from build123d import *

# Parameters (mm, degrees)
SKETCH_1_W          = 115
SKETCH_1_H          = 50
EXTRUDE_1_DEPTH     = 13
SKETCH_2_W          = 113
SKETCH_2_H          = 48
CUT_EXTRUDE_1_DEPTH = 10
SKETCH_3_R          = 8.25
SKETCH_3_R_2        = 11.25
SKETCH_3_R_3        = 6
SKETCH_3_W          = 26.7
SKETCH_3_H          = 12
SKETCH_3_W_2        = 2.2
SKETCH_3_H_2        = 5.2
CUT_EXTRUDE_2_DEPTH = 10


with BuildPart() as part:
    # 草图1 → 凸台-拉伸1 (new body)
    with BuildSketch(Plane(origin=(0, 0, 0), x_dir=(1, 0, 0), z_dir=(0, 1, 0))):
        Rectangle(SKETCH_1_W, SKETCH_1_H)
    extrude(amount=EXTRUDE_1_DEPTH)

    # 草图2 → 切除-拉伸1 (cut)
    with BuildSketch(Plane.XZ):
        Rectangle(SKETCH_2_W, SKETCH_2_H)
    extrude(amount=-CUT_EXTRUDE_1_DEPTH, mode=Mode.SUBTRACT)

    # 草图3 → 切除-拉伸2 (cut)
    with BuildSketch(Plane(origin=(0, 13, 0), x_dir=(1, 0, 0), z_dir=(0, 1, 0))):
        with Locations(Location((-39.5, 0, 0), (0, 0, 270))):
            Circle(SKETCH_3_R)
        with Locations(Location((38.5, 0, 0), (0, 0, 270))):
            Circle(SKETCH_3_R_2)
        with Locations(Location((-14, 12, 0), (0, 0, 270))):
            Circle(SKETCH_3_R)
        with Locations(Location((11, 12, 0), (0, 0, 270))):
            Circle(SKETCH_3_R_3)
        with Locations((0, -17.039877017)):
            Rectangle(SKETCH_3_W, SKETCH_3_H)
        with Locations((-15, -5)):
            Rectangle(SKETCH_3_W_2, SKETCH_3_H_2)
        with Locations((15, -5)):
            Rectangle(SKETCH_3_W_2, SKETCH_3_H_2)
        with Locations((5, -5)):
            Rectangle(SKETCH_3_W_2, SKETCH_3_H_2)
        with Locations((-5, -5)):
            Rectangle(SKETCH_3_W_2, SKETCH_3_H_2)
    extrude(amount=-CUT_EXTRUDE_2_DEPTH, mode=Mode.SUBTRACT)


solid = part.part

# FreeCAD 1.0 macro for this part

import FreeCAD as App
import Part
import Sketcher
from FreeCAD import Vector


def add_polygon(sketch, points):
    """Adds a closed chain of lines whose ends are joined by coincident constraints."""
    first, n = sketch.GeometryCount, len(points)
    for a, b in zip(points, points[1:] + points[:1]):
        sketch.addGeometry(Part.LineSegment(App.Vector(*a, 0), App.Vector(*b, 0)), False)
    for i in range(n):
        sketch.addConstraint(Sketcher.Constraint("Coincident", first + i, 2, first + (i + 1) % n, 1))

doc = App.newDocument("Part")
params = doc.addObject("Spreadsheet::Sheet", "Params")
for row, (alias, value) in enumerate([
    ("sketch1_width", "115 mm"),
    ("sketch1_height", "50 mm"),
    ("pad1_length", "13 mm"),
    ("sketch2_width", "113 mm"),
    ("sketch2_height", "48 mm"),
    ("pocket1_length", "10 mm"),
    ("sketch3_diameter", "12 mm"),
    ("sketch3_diameter2", "16.5 mm"),
    ("sketch3_diameter3", "22.5 mm"),
    ("sketch3_height", "12 mm"),
    ("sketch3_width", "26.7 mm"),
    ("pocket2_length", "10 mm"),
], start=1):
    params.set(f"A{row}", alias)
    params.set(f"B{row}", "=" + value)
    params.setAlias(f"B{row}", alias)

body = doc.addObject("PartDesign::Body", "Body")

sketch1 = doc.addObject("Sketcher::SketchObject", "Sketch")
body.addObject(sketch1)
sketch1.AttachmentSupport = (doc.XZ_Plane, [""])
sketch1.MapMode = "FlatFace"
add_polygon(sketch1, [(-58, -25), (-58, 25), (58, 25), (58, -25)])
sketch1.addConstraint([
    Sketcher.Constraint("Vertical", 0),
    Sketcher.Constraint("Horizontal", 1),
    Sketcher.Constraint("Vertical", 2),
    Sketcher.Constraint("Horizontal", 3),
    Sketcher.Constraint("Symmetric", 0, 2, 2, 2, -1, 1),
    Sketcher.Constraint("DistanceX", 1, 1, 1, 2, 115.0),
    Sketcher.Constraint("DistanceY", 0, 1, 0, 2, 50.0),
])
sketch1.setExpression("Constraints[9]", "Params.sketch1_width")
sketch1.setExpression("Constraints[10]", "Params.sketch1_height")
pad1 = doc.addObject("PartDesign::Pad", "Pad")
body.addObject(pad1)
pad1.Profile = sketch1
pad1.setExpression("Length", "Params.pad1_length")
pad1.Reversed = True

sketch2 = doc.addObject("Sketcher::SketchObject", "Sketch001")
body.addObject(sketch2)
sketch2.AttachmentSupport = (doc.XZ_Plane, [""])
sketch2.MapMode = "FlatFace"
add_polygon(sketch2, [(-56, 24), (-56, -24), (56, -24), (56, 24)])
sketch2.addConstraint([
    Sketcher.Constraint("Vertical", 0),
    Sketcher.Constraint("Horizontal", 1),
    Sketcher.Constraint("Vertical", 2),
    Sketcher.Constraint("Horizontal", 3),
    Sketcher.Constraint("Symmetric", 0, 2, 2, 2, -1, 1),
    Sketcher.Constraint("DistanceX", 1, 1, 1, 2, 113.0),
    Sketcher.Constraint("DistanceY", 0, 2, 0, 1, 48.0),
])
sketch2.setExpression("Constraints[9]", "Params.sketch2_width")
sketch2.setExpression("Constraints[10]", "Params.sketch2_height")
pocket1 = doc.addObject("PartDesign::Pocket", "Pocket")
body.addObject(pocket1)
pocket1.Profile = sketch2
pocket1.setExpression("Length", "Params.pocket1_length")

sketch3 = doc.addObject("Sketcher::SketchObject", "Sketch002")
body.addObject(sketch3)
sketch3.AttachmentSupport = (doc.XZ_Plane, [""])
sketch3.MapMode = "FlatFace"
sketch3.AttachmentOffset = App.Placement(Vector(0, 0, -13), App.Rotation())
sketch3.addGeometry(Part.Circle(Vector(-39.5, 0, 0), Vector(0, 0, 1), 8.2), False)
sketch3.addGeometry(Part.Circle(Vector(38.5, 0, 0), Vector(0, 0, 1), 11.2), False)
sketch3.addGeometry(Part.Circle(Vector(-14, -12, 0), Vector(0, 0, 1), 8.2), False)
sketch3.addGeometry(Part.Circle(Vector(11, -12, 0), Vector(0, 0, 1), 6), False)
add_polygon(sketch3, [(-13.3, 11), (-13.3, 23), (13.3, 23), (13.3, 11)])
add_polygon(sketch3, [(-16.1, 2.4), (-16.1, 7.6), (-13.9, 7.6), (-13.9, 2.4)])
add_polygon(sketch3, [(13.9, 2.4), (13.9, 7.6), (16.1, 7.6), (16.1, 2.4)])
add_polygon(sketch3, [(3.9, 2.4), (3.9, 7.6), (6.1, 7.6), (6.1, 2.4)])
add_polygon(sketch3, [(-6.1, 2.4), (-6.1, 7.6), (-3.9, 7.6), (-3.9, 2.4)])
sketch3.addConstraint([
    Sketcher.Constraint("Vertical", 4),
    Sketcher.Constraint("Horizontal", 5),
    Sketcher.Constraint("Vertical", 6),
    Sketcher.Constraint("Horizontal", 7),
    Sketcher.Constraint("Vertical", 8),
    Sketcher.Constraint("Horizontal", 9),
    Sketcher.Constraint("Vertical", 10),
    Sketcher.Constraint("Horizontal", 11),
    Sketcher.Constraint("Vertical", 12),
    Sketcher.Constraint("Horizontal", 13),
    Sketcher.Constraint("Vertical", 14),
    Sketcher.Constraint("Horizontal", 15),
    Sketcher.Constraint("Vertical", 16),
    Sketcher.Constraint("Horizontal", 17),
    Sketcher.Constraint("Vertical", 18),
    Sketcher.Constraint("Horizontal", 19),
    Sketcher.Constraint("Vertical", 20),
    Sketcher.Constraint("Horizontal", 21),
    Sketcher.Constraint("Vertical", 22),
    Sketcher.Constraint("Horizontal", 23),
    Sketcher.Constraint("Equal", 0, 2),
    Sketcher.Constraint("Symmetric", 9, 2, 12, 2, -2),
    Sketcher.Constraint("Symmetric", 11, 2, 14, 2, -2),
    Sketcher.Constraint("Symmetric", 17, 2, 20, 2, -2),
    Sketcher.Constraint("Symmetric", 19, 2, 22, 2, -2),
    Sketcher.Constraint("PointOnObject", 0, 3, -1),
    Sketcher.Constraint("PointOnObject", 1, 3, -1),
    Sketcher.Constraint("Horizontal", 2, 3, 3, 3),
    Sketcher.Constraint("Horizontal", 13, 2, 16, 2),
    Sketcher.Constraint("Horizontal", 15, 2, 18, 2),
    Sketcher.Constraint("Equal", 15, 17),
    Sketcher.Constraint("Diameter", 3, 12.0),
    Sketcher.Constraint("Diameter", 0, 16.5),
    Sketcher.Constraint("Diameter", 1, 22.5),
    Sketcher.Constraint("DistanceY", 4, 1, 4, 2, 12.0),
    Sketcher.Constraint("DistanceX", 5, 1, 5, 2, 26.7),
    Sketcher.Constraint("DistanceX", 9, 1, 9, 2, 2.2),
    Sketcher.Constraint("DistanceY", 8, 1, 8, 2, 5.2),
    Sketcher.Constraint("DistanceX", 2, 3, -1, 1, 14.0),
    Sketcher.Constraint("DistanceY", 2, 3, -1, 1, 12.0),
    Sketcher.Constraint("DistanceX", -1, 1, 3, 3, 11.0),
    Sketcher.Constraint("DistanceX", 0, 3, 1, 3, 78.0),
    Sketcher.Constraint("DistanceX", 16, 2, 12, 2, 10.0),
    Sketcher.Constraint("DistanceX", 20, 2, 16, 2, 10.0),
    Sketcher.Constraint("DistanceX", 0, 3, -1, 1, 39.5),
    Sketcher.Constraint("DistanceY", -1, 1, 8, 2, 7.6),
    Sketcher.Constraint("DistanceX", 4, 2, -1, 1, 13.35),
    Sketcher.Constraint("DistanceY", -1, 1, 4, 2, 23.039877),
])
sketch3.setExpression("Constraints[51]", "Params.sketch3_diameter")
sketch3.setExpression("Constraints[52]", "Params.sketch3_diameter2")
sketch3.setExpression("Constraints[53]", "Params.sketch3_diameter3")
sketch3.setExpression("Constraints[54]", "Params.sketch3_height")
sketch3.setExpression("Constraints[55]", "Params.sketch3_width")
pocket2 = doc.addObject("PartDesign::Pocket", "Pocket001")
body.addObject(pocket2)
pocket2.Profile = sketch3
pocket2.setExpression("Length", "Params.pocket2_length")
pocket2.Reversed = True

doc.recompute()
